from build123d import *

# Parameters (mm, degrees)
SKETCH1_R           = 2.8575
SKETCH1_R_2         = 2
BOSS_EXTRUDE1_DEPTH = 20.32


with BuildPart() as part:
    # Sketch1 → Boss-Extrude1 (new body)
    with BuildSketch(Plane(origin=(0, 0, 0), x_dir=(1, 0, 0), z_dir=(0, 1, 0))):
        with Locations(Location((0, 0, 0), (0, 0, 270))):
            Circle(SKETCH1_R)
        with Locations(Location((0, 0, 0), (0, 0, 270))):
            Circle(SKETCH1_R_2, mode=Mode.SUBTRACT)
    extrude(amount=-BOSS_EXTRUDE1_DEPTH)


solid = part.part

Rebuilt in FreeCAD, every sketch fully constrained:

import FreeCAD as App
import Part
import Sketcher
from FreeCAD import Vector
Q = App.Units.Quantity

doc = App.newDocument("Part")
params = doc.addObject("Spreadsheet::Sheet", "Params")
for row, (alias, value) in enumerate([
    ("sketch1_diameter", "0.225 in"),
    ("pad1_length", "0.8 in"),
], start=1):
    params.set(f"A{row}", alias)
    params.set(f"B{row}", "=" + value)
    params.setAlias(f"B{row}", alias)

body = doc.addObject("PartDesign::Body", "Body")

# Sketch on XZ plane
sketch1 = body.newObject("Sketcher::SketchObject", "Sketch")
sketch1.AttachmentSupport = (doc.getObject("XZ_Plane"), [""])
sketch1.MapMode = "FlatFace"
sketch1.addGeometry(Part.Circle(Vector(0, 0, 0), Vector(0, 0, 1), 2.9), False)
sketch1.addGeometry(Part.Circle(Vector(0, 0, 0), Vector(0, 0, 1), 2), False)
sketch1.addConstraint(Sketcher.Constraint("Coincident", 0, 3, -1, 1))
sketch1.addConstraint(Sketcher.Constraint("Coincident", 1, 3, -1, 1))
sketch1.addConstraint(Sketcher.Constraint("Diameter", 0, Q("0.225 in")))
sketch1.addConstraint(Sketcher.Constraint("Diameter", 1, 4.0))
sketch1.setExpression("Constraints[2]", "Params.sketch1_diameter")
pad1 = body.newObject("PartDesign::Pad", "Pad")
pad1.Profile = sketch1
pad1.setExpression("Length", "Params.pad1_length")

doc.recompute()
